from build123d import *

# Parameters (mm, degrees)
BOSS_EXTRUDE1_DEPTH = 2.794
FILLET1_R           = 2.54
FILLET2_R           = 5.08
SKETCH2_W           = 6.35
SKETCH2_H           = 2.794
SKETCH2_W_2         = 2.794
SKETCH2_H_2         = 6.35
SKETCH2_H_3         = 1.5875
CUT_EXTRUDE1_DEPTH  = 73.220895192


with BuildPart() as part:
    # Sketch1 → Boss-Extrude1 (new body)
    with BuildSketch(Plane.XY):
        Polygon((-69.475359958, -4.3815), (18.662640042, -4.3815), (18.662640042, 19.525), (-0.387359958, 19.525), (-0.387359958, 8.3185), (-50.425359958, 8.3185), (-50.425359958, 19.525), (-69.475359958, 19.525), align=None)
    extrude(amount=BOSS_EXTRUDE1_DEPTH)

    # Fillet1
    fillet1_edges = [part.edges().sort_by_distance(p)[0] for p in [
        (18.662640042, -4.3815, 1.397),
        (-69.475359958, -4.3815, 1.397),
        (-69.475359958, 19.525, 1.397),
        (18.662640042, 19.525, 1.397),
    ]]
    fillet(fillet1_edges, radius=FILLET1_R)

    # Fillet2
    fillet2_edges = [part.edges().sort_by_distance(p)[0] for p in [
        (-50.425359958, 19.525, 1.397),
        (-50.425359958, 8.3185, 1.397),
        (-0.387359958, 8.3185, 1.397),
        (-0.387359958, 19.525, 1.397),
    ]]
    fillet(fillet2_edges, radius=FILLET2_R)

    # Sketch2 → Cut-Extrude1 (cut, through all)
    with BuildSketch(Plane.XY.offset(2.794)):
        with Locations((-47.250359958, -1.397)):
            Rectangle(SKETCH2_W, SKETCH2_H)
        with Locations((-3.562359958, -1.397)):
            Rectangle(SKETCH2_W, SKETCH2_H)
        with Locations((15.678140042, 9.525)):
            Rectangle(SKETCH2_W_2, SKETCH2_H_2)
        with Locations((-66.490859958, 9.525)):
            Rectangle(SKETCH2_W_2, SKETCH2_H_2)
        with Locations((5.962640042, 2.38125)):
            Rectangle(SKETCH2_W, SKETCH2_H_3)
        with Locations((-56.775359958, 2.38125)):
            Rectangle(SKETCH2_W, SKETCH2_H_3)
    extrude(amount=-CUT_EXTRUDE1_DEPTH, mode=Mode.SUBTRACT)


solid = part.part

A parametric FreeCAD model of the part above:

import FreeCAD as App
import Part
import Sketcher
from FreeCAD import Vector
Q = App.Units.Quantity


def edges_at(feature, points):
    """Names of the edges that pass closest to the given points."""
    edges = feature.Shape.Edges
    near = lambda p: min(range(len(edges)), key=lambda i: edges[i].distToShape(Part.Vertex(*p))[0])
    return sorted({f"Edge{near(p) + 1}" for p in points})

doc = App.newDocument("Part")
body = doc.addObject("PartDesign::Body", "Body")

sketch1 = body.newObject("Sketcher::SketchObject", "Sketch")
sketch1.AttachmentSupport = (doc.getObject("XY_Plane"), [""])
sketch1.MapMode = "FlatFace"
sketch1.addGeometry([
    Part.LineSegment(Vector(-69, -4, 0), Vector(19, -4, 0)),
    Part.LineSegment(Vector(19, -4, 0), Vector(19, 20, 0)),
    Part.LineSegment(Vector(19, 20, 0), Vector(0, 20, 0)),
    Part.LineSegment(Vector(0, 20, 0), Vector(0, 8, 0)),
    Part.LineSegment(Vector(0, 8, 0), Vector(-50, 8, 0)),
    Part.LineSegment(Vector(-50, 8, 0), Vector(-50, 20, 0)),
    Part.LineSegment(Vector(-50, 20, 0), Vector(-69, 20, 0)),
    Part.LineSegment(Vector(-69, 20, 0), Vector(-69, -4, 0)),
], False)
sketch1.addConstraint([
    Sketcher.Constraint("Coincident", 0, 2, 1, 1),
    Sketcher.Constraint("Coincident", 1, 2, 2, 1),
    Sketcher.Constraint("Coincident", 2, 2, 3, 1),
    Sketcher.Constraint("Coincident", 3, 2, 4, 1),
    Sketcher.Constraint("Coincident", 4, 2, 5, 1),
    Sketcher.Constraint("Coincident", 5, 2, 6, 1),
    Sketcher.Constraint("Coincident", 6, 2, 7, 1),
    Sketcher.Constraint("Coincident", 7, 2, 0, 1),
    Sketcher.Constraint("Horizontal", 0),
    Sketcher.Constraint("Vertical", 1),
    Sketcher.Constraint("Horizontal", 2),
    Sketcher.Constraint("Vertical", 3),
    Sketcher.Constraint("Horizontal", 4),
    Sketcher.Constraint("Vertical", 5),
    Sketcher.Constraint("Horizontal", 6),
    Sketcher.Constraint("Vertical", 7),
    Sketcher.Constraint("Horizontal", 2, 2, 5, 2),
    Sketcher.Constraint("Equal", 2, 6),
    Sketcher.Constraint("DistanceX", 0, 1, 0, 2, Q("3.47 in")),
    Sketcher.Constraint("DistanceX", 2, 2, 2, 1, Q("0.75 in")),
    Sketcher.Constraint("DistanceY", 0, 2, 3, 2, Q("0.5 in")),
    Sketcher.Constraint("DistanceY", 1, 1, 1, 2, Q("23.9065 mm")),
    Sketcher.Constraint("DistanceY", 0, 2, -1, 1, Q("0.1725 in")),
    Sketcher.Constraint("DistanceX", -1, 1, 0, 2, Q("18.66264 mm")),
])
pad1 = body.newObject("PartDesign::Pad", "Pad")
pad1.Profile = sketch1
pad1.Length = Q("0.11 in")
doc.recompute()

fillet = body.newObject("PartDesign::Fillet", "Fillet")
fillet.Base = (pad1, edges_at(pad1, [
    (18.663, -4.381, 1.397),
    (-69.475, -4.381, 1.397),
    (-69.475, 19.525, 1.397),
    (18.663, 19.525, 1.397),
]))
fillet.Radius = Q("0.1 in")
doc.recompute()

fillet2 = body.newObject("PartDesign::Fillet", "Fillet001")
fillet2.Base = (fillet, edges_at(fillet, [
    (-50.425, 19.525, 1.397),
    (-50.425, 8.319, 1.397),
    (-0.387, 8.319, 1.397),
    (-0.387, 19.525, 1.397),
]))
fillet2.Radius = Q("0.2 in")

sketch2 = body.newObject("Sketcher::SketchObject", "Sketch001")
sketch2.AttachmentSupport = (doc.getObject("XY_Plane"), [""])
sketch2.MapMode = "FlatFace"
sketch2.AttachmentOffset = App.Placement(Vector(0, 0, 0.11 * 25.4), App.Rotation())
sketch2.addGeometry([
    Part.LineSegment(Vector(-50.4, 0, 0), Vector(-50.4, -2.8, 0)),
    Part.LineSegment(Vector(-50.4, -2.8, 0), Vector(-44.1, -2.8, 0)),
    Part.LineSegment(Vector(-44.1, -2.8, 0), Vector(-44.1, 0, 0)),
    Part.LineSegment(Vector(-44.1, 0, 0), Vector(-50.4, 0, 0)),
    Part.LineSegment(Vector(-6.7, 0, 0), Vector(-6.7, -2.8, 0)),
    Part.LineSegment(Vector(-6.7, -2.8, 0), Vector(-0.4, -2.8, 0)),
    Part.LineSegment(Vector(-0.4, -2.8, 0), Vector(-0.4, 0, 0)),
    Part.LineSegment(Vector(-0.4, 0, 0), Vector(-6.7, 0, 0)),
    Part.LineSegment(Vector(14.3, 12.7, 0), Vector(14.3, 6.3, 0)),
    Part.LineSegment(Vector(14.3, 6.3, 0), Vector(17.1, 6.3, 0)),
    Part.LineSegment(Vector(17.1, 6.3, 0), Vector(17.1, 12.7, 0)),
    Part.LineSegment(Vector(17.1, 12.7, 0), Vector(14.3, 12.7, 0)),
    Part.LineSegment(Vector(-67.9, 12.7, 0), Vector(-67.9, 6.3, 0)),
    Part.LineSegment(Vector(-67.9, 6.3, 0), Vector(-65.1, 6.3, 0)),
    Part.LineSegment(Vector(-65.1, 6.3, 0), Vector(-65.1, 12.7, 0)),
    Part.LineSegment(Vector(-65.1, 12.7, 0), Vector(-67.9, 12.7, 0)),
    Part.LineSegment(Vector(2.8, 3.2, 0), Vector(2.8, 1.6, 0)),
    Part.LineSegment(Vector(2.8, 1.6, 0), Vector(9.1, 1.6, 0)),
    Part.LineSegment(Vector(9.1, 1.6, 0), Vector(9.1, 3.2, 0)),
    Part.LineSegment(Vector(9.1, 3.2, 0), Vector(2.8, 3.2, 0)),
    Part.LineSegment(Vector(-60, 3.2, 0), Vector(-60, 1.6, 0)),
    Part.LineSegment(Vector(-60, 1.6, 0), Vector(-53.6, 1.6, 0)),
    Part.LineSegment(Vector(-53.6, 1.6, 0), Vector(-53.6, 3.2, 0)),
    Part.LineSegment(Vector(-53.6, 3.2, 0), Vector(-60, 3.2, 0)),
], False)
sketch2.addConstraint([
    Sketcher.Constraint("Coincident", 0, 2, 1, 1),
    Sketcher.Constraint("Coincident", 1, 2, 2, 1),
    Sketcher.Constraint("Coincident", 2, 2, 3, 1),
    Sketcher.Constraint("Coincident", 3, 2, 0, 1),
    Sketcher.Constraint("Coincident", 4, 2, 5, 1),
    Sketcher.Constraint("Coincident", 5, 2, 6, 1),
    Sketcher.Constraint("Coincident", 6, 2, 7, 1),
    Sketcher.Constraint("Coincident", 7, 2, 4, 1),
    Sketcher.Constraint("Coincident", 8, 2, 9, 1),
    Sketcher.Constraint("Coincident", 9, 2, 10, 1),
    Sketcher.Constraint("Coincident", 10, 2, 11, 1),
    Sketcher.Constraint("Coincident", 11, 2, 8, 1),
    Sketcher.Constraint("Coincident", 12, 2, 13, 1),
    Sketcher.Constraint("Coincident", 13, 2, 14, 1),
    Sketcher.Constraint("Coincident", 14, 2, 15, 1),
    Sketcher.Constraint("Coincident", 15, 2, 12, 1),
    Sketcher.Constraint("Coincident", 16, 2, 17, 1),
    Sketcher.Constraint("Coincident", 17, 2, 18, 1),
    Sketcher.Constraint("Coincident", 18, 2, 19, 1),
    Sketcher.Constraint("Coincident", 19, 2, 16, 1),
    Sketcher.Constraint("Coincident", 20, 2, 21, 1),
    Sketcher.Constraint("Coincident", 21, 2, 22, 1),
    Sketcher.Constraint("Coincident", 22, 2, 23, 1),
    Sketcher.Constraint("Coincident", 23, 2, 20, 1),
    Sketcher.Constraint("Vertical", 0),
    Sketcher.Constraint("Horizontal", 1),
    Sketcher.Constraint("Vertical", 2),
    Sketcher.Constraint("Horizontal", 3),
    Sketcher.Constraint("Vertical", 4),
    Sketcher.Constraint("Horizontal", 5),
    Sketcher.Constraint("Vertical", 6),
    Sketcher.Constraint("Horizontal", 7),
    Sketcher.Constraint("Vertical", 8),
    Sketcher.Constraint("Horizontal", 9),
    Sketcher.Constraint("Vertical", 10),
    Sketcher.Constraint("Horizontal", 11),
    Sketcher.Constraint("Vertical", 12),
    Sketcher.Constraint("Horizontal", 13),
    Sketcher.Constraint("Vertical", 14),
    Sketcher.Constraint("Horizontal", 15),
    Sketcher.Constraint("Vertical", 16),
    Sketcher.Constraint("Horizontal", 17),
    Sketcher.Constraint("Vertical", 18),
    Sketcher.Constraint("Horizontal", 19),
    Sketcher.Constraint("Vertical", 20),
    Sketcher.Constraint("Horizontal", 21),
    Sketcher.Constraint("Vertical", 22),
    Sketcher.Constraint("Horizontal", 23),
    Sketcher.Constraint("PointOnObject", 2, 2, -1),
    Sketcher.Constraint("PointOnObject", 6, 2, -1),
    Sketcher.Constraint("Horizontal", 1, 2, 4, 2),
    Sketcher.Constraint("Horizontal", 9, 2, 12, 2),
    Sketcher.Constraint("Horizontal", 11, 2, 14, 2),
    Sketcher.Constraint("Horizontal", 17, 2, 20, 2),
    Sketcher.Constraint("Horizontal", 19, 2, 22, 2),
    Sketcher.Constraint("Equal", 3, 5),
    Sketcher.Constraint("Equal", 11, 13),
    Sketcher.Constraint("Equal", 7, 17),
    Sketcher.Constraint("Equal", 19, 21),
    Sketcher.Constraint("Equal", 15, 0),
    Sketcher.Constraint("Equal", 23, 8),
    Sketcher.Constraint("DistanceX", 1, 1, 1, 2, Q("0.25 in")),
    Sketcher.Constraint("DistanceX", 9, 1, 9, 2, Q("0.11 in")),
    Sketcher.Constraint("DistanceY", -1, 1, 10, 2, Q("0.5 in")),
    Sketcher.Constraint("DistanceY", 16, 2, 16, 1, Q("0.0625 in")),
    Sketcher.Constraint("DistanceX", 1, 2, 4, 2, Q("1.47 in")),
    Sketcher.Constraint("DistanceY", -1, 1, 16, 2, Q("0.0625 in")),
    Sketcher.Constraint("DistanceX", 6, 2, 9, 2, Q("0.6875 in")),
    Sketcher.Constraint("DistanceX", 12, 2, 3, 2, Q("0.6875 in")),
    Sketcher.Constraint("DistanceX", 6, 2, 16, 2, Q("0.125 in")),
    Sketcher.Constraint("DistanceX", 12, 2, 20, 2, Q("0.3125 in")),
    Sketcher.Constraint("DistanceX", 0, 2, -1, 1, Q("50.42536 mm")),
])
pocket1 = body.newObject("PartDesign::Pocket", "Pocket")
pocket1.Profile = sketch2
pocket1.Type = "ThroughAll"

doc.recompute()
